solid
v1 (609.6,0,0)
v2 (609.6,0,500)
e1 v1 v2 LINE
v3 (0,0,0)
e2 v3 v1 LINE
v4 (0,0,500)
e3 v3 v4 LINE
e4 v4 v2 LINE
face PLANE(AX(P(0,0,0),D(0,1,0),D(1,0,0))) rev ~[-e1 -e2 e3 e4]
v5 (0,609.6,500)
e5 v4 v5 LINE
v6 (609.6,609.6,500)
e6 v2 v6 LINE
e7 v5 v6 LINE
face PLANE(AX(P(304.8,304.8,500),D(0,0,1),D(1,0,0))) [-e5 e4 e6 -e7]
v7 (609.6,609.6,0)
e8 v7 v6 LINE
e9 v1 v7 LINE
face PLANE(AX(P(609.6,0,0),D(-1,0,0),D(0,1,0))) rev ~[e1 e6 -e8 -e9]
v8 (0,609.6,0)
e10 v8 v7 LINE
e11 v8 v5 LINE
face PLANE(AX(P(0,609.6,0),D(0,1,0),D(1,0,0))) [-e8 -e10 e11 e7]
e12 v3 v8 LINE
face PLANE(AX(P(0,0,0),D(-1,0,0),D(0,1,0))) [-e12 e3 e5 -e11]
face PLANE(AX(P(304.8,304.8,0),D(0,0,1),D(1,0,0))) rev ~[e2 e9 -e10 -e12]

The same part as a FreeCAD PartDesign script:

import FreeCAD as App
import Part
import Sketcher

V = App.Vector

doc = App.newDocument("Part")
body = doc.addObject("PartDesign::Body", "Body")

# Sketch on XY plane
sketch1 = body.newObject("Sketcher::SketchObject", "Sketch")
sketch1.AttachmentSupport = (doc.getObject("XY_Plane"), [""])
sketch1.MapMode = "FlatFace"
sketch1.addGeometry([
    Part.LineSegment(V(0, 610, 0), V(0, 0, 0)),
    Part.LineSegment(V(0, 0, 0), V(610, 0, 0)),
    Part.LineSegment(V(610, 0, 0), V(610, 610, 0)),
    Part.LineSegment(V(610, 610, 0), V(0, 610, 0)),
], False)
sketch1.addConstraint([
    Sketcher.Constraint("Coincident", 0, 2, 1, 1),
    Sketcher.Constraint("Coincident", 1, 2, 2, 1),
    Sketcher.Constraint("Coincident", 2, 2, 3, 1),
    Sketcher.Constraint("Coincident", 3, 2, 0, 1),
    Sketcher.Constraint("Vertical", 0),
    Sketcher.Constraint("Horizontal", 1),
    Sketcher.Constraint("Vertical", 2),
    Sketcher.Constraint("Horizontal", 3),
    Sketcher.Constraint("Coincident", 0, 2, -1, 1),
    Sketcher.Constraint("Equal", 3, 0),
    Sketcher.Constraint("DistanceX", 1, 1, 1, 2, 609.6),
])
pad1 = body.newObject("PartDesign::Pad", "Pad")
pad1.Profile = sketch1
pad1.Length = 500

doc.recompute()
